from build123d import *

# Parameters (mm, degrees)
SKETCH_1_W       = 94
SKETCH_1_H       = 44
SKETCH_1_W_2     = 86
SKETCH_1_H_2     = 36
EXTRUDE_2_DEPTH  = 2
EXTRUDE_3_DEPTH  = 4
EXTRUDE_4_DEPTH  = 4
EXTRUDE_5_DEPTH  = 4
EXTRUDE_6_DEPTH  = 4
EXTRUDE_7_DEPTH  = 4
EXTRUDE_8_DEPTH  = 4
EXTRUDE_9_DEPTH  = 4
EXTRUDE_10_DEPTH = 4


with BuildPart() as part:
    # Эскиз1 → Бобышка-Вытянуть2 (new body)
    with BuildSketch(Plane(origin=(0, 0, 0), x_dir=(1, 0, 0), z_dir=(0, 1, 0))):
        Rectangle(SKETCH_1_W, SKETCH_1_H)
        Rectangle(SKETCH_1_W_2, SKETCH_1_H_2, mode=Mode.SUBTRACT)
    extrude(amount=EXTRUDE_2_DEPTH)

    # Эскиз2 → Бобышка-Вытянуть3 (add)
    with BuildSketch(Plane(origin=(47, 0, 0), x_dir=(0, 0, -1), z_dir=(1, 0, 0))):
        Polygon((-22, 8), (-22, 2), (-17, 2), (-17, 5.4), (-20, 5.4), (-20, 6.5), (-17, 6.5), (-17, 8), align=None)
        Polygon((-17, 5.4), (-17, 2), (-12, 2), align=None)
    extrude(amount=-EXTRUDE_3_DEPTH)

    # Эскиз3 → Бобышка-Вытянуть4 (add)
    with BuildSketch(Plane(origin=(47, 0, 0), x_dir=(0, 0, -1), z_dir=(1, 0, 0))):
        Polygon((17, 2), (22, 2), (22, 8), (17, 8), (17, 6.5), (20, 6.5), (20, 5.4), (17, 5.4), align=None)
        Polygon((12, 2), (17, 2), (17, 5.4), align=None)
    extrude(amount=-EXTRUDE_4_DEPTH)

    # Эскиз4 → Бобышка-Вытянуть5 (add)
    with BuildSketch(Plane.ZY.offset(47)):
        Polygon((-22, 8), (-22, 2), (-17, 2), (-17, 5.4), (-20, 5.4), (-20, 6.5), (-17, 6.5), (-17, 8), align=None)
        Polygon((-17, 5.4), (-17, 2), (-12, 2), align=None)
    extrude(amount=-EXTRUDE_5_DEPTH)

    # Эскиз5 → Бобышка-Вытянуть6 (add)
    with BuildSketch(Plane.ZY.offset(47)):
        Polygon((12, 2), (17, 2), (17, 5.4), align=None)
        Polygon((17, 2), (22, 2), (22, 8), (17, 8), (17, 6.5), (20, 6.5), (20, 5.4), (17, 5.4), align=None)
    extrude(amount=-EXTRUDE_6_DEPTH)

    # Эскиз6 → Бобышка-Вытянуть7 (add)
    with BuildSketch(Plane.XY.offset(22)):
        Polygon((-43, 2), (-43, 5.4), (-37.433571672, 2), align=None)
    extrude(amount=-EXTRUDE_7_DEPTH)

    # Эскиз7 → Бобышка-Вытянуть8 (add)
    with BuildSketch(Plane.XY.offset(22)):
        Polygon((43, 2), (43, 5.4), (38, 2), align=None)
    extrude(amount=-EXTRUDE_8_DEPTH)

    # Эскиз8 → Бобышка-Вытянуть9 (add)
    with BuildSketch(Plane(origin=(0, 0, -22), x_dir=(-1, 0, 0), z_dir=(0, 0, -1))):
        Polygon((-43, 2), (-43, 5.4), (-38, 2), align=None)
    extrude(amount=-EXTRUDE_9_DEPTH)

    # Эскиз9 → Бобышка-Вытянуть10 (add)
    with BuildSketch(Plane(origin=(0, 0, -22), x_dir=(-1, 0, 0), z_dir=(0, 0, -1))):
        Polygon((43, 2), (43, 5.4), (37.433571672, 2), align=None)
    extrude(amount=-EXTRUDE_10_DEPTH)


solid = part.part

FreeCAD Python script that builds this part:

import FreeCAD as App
import Part
import Sketcher
Q = App.Units.Quantity


def add_polygon(sketch, points):
    """Adds a closed chain of lines whose ends are joined by coincident constraints."""
    first, n = sketch.GeometryCount, len(points)
    for a, b in zip(points, points[1:] + points[:1]):
        sketch.addGeometry(Part.LineSegment(App.Vector(*a, 0), App.Vector(*b, 0)), False)
    for i in range(n):
        sketch.addConstraint(Sketcher.Constraint("Coincident", first + i, 2, first + (i + 1) % n, 1))

doc = App.newDocument("Part")
body = doc.addObject("PartDesign::Body", "Body")

# Sketch on XZ plane
sketch1 = doc.addObject("Sketcher::SketchObject", "Sketch")
body.addObject(sketch1)
sketch1.AttachmentSupport = (doc.XZ_Plane, [""])
sketch1.MapMode = "FlatFace"
add_polygon(sketch1, [(-47, -22), (-47, 22), (47, 22), (47, -22)])  # lines 0-3
add_polygon(sketch1, [(43, 18), (-43, 18), (-43, -18), (43, -18)])  # lines 4-7
sketch1.addConstraint(Sketcher.Constraint("Vertical", 0))
sketch1.addConstraint(Sketcher.Constraint("Horizontal", 1))
sketch1.addConstraint(Sketcher.Constraint("Vertical", 2))
sketch1.addConstraint(Sketcher.Constraint("Horizontal", 3))
sketch1.addConstraint(Sketcher.Constraint("Horizontal", 4))
sketch1.addConstraint(Sketcher.Constraint("Vertical", 5))
sketch1.addConstraint(Sketcher.Constraint("Horizontal", 6))
sketch1.addConstraint(Sketcher.Constraint("Vertical", 7))
sketch1.addConstraint(Sketcher.Constraint("Symmetric", 0, 2, 2, 2, -1, 1))
sketch1.addConstraint(Sketcher.Constraint("Symmetric", 4, 2, 6, 2, -1, 1))
sketch1.addConstraint(Sketcher.Constraint("DistanceX", 1, 1, 1, 2, Q("94 mm")))
sketch1.addConstraint(Sketcher.Constraint("DistanceX", 4, 2, 4, 1, Q("86 mm")))
sketch1.addConstraint(Sketcher.Constraint("DistanceY", 0, 1, 0, 2, Q("44 mm")))
sketch1.addConstraint(Sketcher.Constraint("DistanceY", 5, 2, 5, 1, Q("36 mm")))
pad1 = doc.addObject("PartDesign::Pad", "Pad")
body.addObject(pad1)
pad1.Profile = sketch1
pad1.Length = 2
pad1.Reversed = True

# Sketch on YZ plane
sketch2 = doc.addObject("Sketcher::SketchObject", "Sketch001")
body.addObject(sketch2)
sketch2.AttachmentSupport = (doc.YZ_Plane, [""])
sketch2.MapMode = "FlatFace"
sketch2.AttachmentOffset = App.Placement(App.Vector(0, 0, 47), App.Rotation())
add_polygon(sketch2, [(8, 22), (2, 22), (2, 12), (5.4, 17), (5.4, 20), (6.5, 20), (6.5, 17), (8, 17)])  # lines 0-7
sketch2.addConstraint(Sketcher.Constraint("Horizontal", 0))
sketch2.addConstraint(Sketcher.Constraint("Vertical", 1))
sketch2.addConstraint(Sketcher.Constraint("Vertical", 3))
sketch2.addConstraint(Sketcher.Constraint("Horizontal", 4))
sketch2.addConstraint(Sketcher.Constraint("Vertical", 5))
sketch2.addConstraint(Sketcher.Constraint("Horizontal", 6))
sketch2.addConstraint(Sketcher.Constraint("Vertical", 7))
sketch2.addConstraint(Sketcher.Constraint("Horizontal", 2, 2, 5, 2))
sketch2.addConstraint(Sketcher.Constraint("DistanceX", 0, 2, 0, 1, Q("6 mm")))
sketch2.addConstraint(Sketcher.Constraint("DistanceY", 1, 2, 1, 1, Q("10 mm")))
sketch2.addConstraint(Sketcher.Constraint("DistanceY", 3, 1, 3, 2, Q("3 mm")))
sketch2.addConstraint(Sketcher.Constraint("DistanceY", 7, 1, 7, 2, Q("5 mm")))
sketch2.addConstraint(Sketcher.Constraint("DistanceX", 4, 1, 4, 2, Q("1.1 mm")))
sketch2.addConstraint(Sketcher.Constraint("DistanceX", 6, 1, 6, 2, Q("1.5 mm")))
sketch2.addConstraint(Sketcher.Constraint("DistanceX", -1, 1, 0, 2, Q("2 mm")))
sketch2.addConstraint(Sketcher.Constraint("DistanceY", -1, 1, 0, 2, Q("22 mm")))
pad2 = doc.addObject("PartDesign::Pad", "Pad001")
body.addObject(pad2)
pad2.Profile = sketch2
pad2.Length = 4
pad2.Reversed = True

# Sketch on YZ plane
sketch3 = doc.addObject("Sketcher::SketchObject", "Sketch002")
body.addObject(sketch3)
sketch3.AttachmentSupport = (doc.YZ_Plane, [""])
sketch3.MapMode = "FlatFace"
sketch3.AttachmentOffset = App.Placement(App.Vector(0, 0, 47), App.Rotation())
add_polygon(sketch3, [(2, -22), (8, -22), (8, -17), (6.5, -17), (6.5, -20), (5.4, -20), (5.4, -17), (2, -12)])  # lines 0-7
sketch3.addConstraint(Sketcher.Constraint("Horizontal", 0))
sketch3.addConstraint(Sketcher.Constraint("Vertical", 1))
sketch3.addConstraint(Sketcher.Constraint("Horizontal", 2))
sketch3.addConstraint(Sketcher.Constraint("Vertical", 3))
sketch3.addConstraint(Sketcher.Constraint("Horizontal", 4))
sketch3.addConstraint(Sketcher.Constraint("Vertical", 5))
sketch3.addConstraint(Sketcher.Constraint("Vertical", 7))
sketch3.addConstraint(Sketcher.Constraint("Horizontal", 2, 2, 5, 2))
sketch3.addConstraint(Sketcher.Constraint("DistanceX", 0, 1, 0, 2, Q("6 mm")))
sketch3.addConstraint(Sketcher.Constraint("DistanceY", 1, 1, 1, 2, Q("5 mm")))
sketch3.addConstraint(Sketcher.Constraint("DistanceY", 3, 2, 3, 1, Q("3 mm")))
sketch3.addConstraint(Sketcher.Constraint("DistanceY", 7, 2, 7, 1, Q("10 mm")))
sketch3.addConstraint(Sketcher.Constraint("DistanceX", 2, 2, 2, 1, Q("1.5 mm")))
sketch3.addConstraint(Sketcher.Constraint("DistanceX", 4, 2, 4, 1, Q("1.1 mm")))
sketch3.addConstraint(Sketcher.Constraint("DistanceX", -1, 1, 0, 2, Q("8 mm")))
sketch3.addConstraint(Sketcher.Constraint("DistanceY", 0, 2, -1, 1, Q("22 mm")))
pad3 = doc.addObject("PartDesign::Pad", "Pad002")
body.addObject(pad3)
pad3.Profile = sketch3
pad3.Length = 4
pad3.Reversed = True

# Sketch on YZ plane
sketch4 = doc.addObject("Sketcher::SketchObject", "Sketch003")
body.addObject(sketch4)
sketch4.AttachmentSupport = (doc.YZ_Plane, [""])
sketch4.MapMode = "FlatFace"
sketch4.AttachmentOffset = App.Placement(App.Vector(0, 0, -47), App.Rotation())
add_polygon(sketch4, [(8, -22), (2, -22), (2, -12), (5.4, -17), (5.4, -20), (6.5, -20), (6.5, -17), (8, -17)])  # lines 0-7
sketch4.addConstraint(Sketcher.Constraint("Horizontal", 0))
sketch4.addConstraint(Sketcher.Constraint("Vertical", 1))
sketch4.addConstraint(Sketcher.Constraint("Vertical", 3))
sketch4.addConstraint(Sketcher.Constraint("Horizontal", 4))
sketch4.addConstraint(Sketcher.Constraint("Vertical", 5))
sketch4.addConstraint(Sketcher.Constraint("Horizontal", 6))
sketch4.addConstraint(Sketcher.Constraint("Vertical", 7))
sketch4.addConstraint(Sketcher.Constraint("Horizontal", 2, 2, 5, 2))
sketch4.addConstraint(Sketcher.Constraint("DistanceX", 0, 2, 0, 1, Q("6 mm")))
sketch4.addConstraint(Sketcher.Constraint("DistanceY", 1, 1, 1, 2, Q("10 mm")))
sketch4.addConstraint(Sketcher.Constraint("DistanceY", 3, 2, 3, 1, Q("3 mm")))
sketch4.addConstraint(Sketcher.Constraint("DistanceY", 7, 2, 7, 1, Q("5 mm")))
sketch4.addConstraint(Sketcher.Constraint("DistanceX", 4, 1, 4, 2, Q("1.1 mm")))
sketch4.addConstraint(Sketcher.Constraint("DistanceX", 6, 1, 6, 2, Q("1.5 mm")))
sketch4.addConstraint(Sketcher.Constraint("DistanceX", -1, 1, 0, 2, Q("2 mm")))
sketch4.addConstraint(Sketcher.Constraint("DistanceY", 0, 2, -1, 1, Q("22 mm")))
pad4 = doc.addObject("PartDesign::Pad", "Pad003")
body.addObject(pad4)
pad4.Profile = sketch4
pad4.Length = 4

# Sketch on YZ plane
sketch5 = doc.addObject("Sketcher::SketchObject", "Sketch004")
body.addObject(sketch5)
sketch5.AttachmentSupport = (doc.YZ_Plane, [""])
sketch5.MapMode = "FlatFace"
sketch5.AttachmentOffset = App.Placement(App.Vector(0, 0, -47), App.Rotation())
add_polygon(sketch5, [(2, 12), (2, 22), (8, 22), (8, 17), (6.5, 17), (6.5, 20), (5.4, 20), (5.4, 17)])  # lines 0-7
sketch5.addConstraint(Sketcher.Constraint("Vertical", 0))
sketch5.addConstraint(Sketcher.Constraint("Horizontal", 1))
sketch5.addConstraint(Sketcher.Constraint("Vertical", 2))
sketch5.addConstraint(Sketcher.Constraint("Horizontal", 3))
sketch5.addConstraint(Sketcher.Constraint("Vertical", 4))
sketch5.addConstraint(Sketcher.Constraint("Horizontal", 5))
sketch5.addConstraint(Sketcher.Constraint("Vertical", 6))
sketch5.addConstraint(Sketcher.Constraint("Horizontal", 3, 2, 6, 2))
sketch5.addConstraint(Sketcher.Constraint("DistanceX", 1, 1, 1, 2, Q("6 mm")))
sketch5.addConstraint(Sketcher.Constraint("DistanceY", 0, 1, 0, 2, Q("10 mm")))
sketch5.addConstraint(Sketcher.Constraint("DistanceY", 2, 2, 2, 1, Q("5 mm")))
sketch5.addConstraint(Sketcher.Constraint("DistanceY", 4, 1, 4, 2, Q("3 mm")))
sketch5.addConstraint(Sketcher.Constraint("DistanceX", 3, 2, 3, 1, Q("1.5 mm")))
sketch5.addConstraint(Sketcher.Constraint("DistanceX", 5, 2, 5, 1, Q("1.1 mm")))
sketch5.addConstraint(Sketcher.Constraint("DistanceX", -1, 1, 0, 2, Q("2 mm")))
sketch5.addConstraint(Sketcher.Constraint("DistanceY", -1, 1, 0, 2, Q("22 mm")))
pad5 = doc.addObject("PartDesign::Pad", "Pad004")
body.addObject(pad5)
pad5.Profile = sketch5
pad5.Length = 4

# Sketch on XY plane
sketch6 = doc.addObject("Sketcher::SketchObject", "Sketch005")
body.addObject(sketch6)
sketch6.AttachmentSupport = (doc.XY_Plane, [""])
sketch6.MapMode = "FlatFace"
sketch6.AttachmentOffset = App.Placement(App.Vector(0, 0, 22), App.Rotation())
add_polygon(sketch6, [(-43, 5.4), (-43, 2), (-37.4, 2)])  # lines 0-2
sketch6.addConstraint(Sketcher.Constraint("Vertical", 0))
sketch6.addConstraint(Sketcher.Constraint("Horizontal", 1))
sketch6.addConstraint(Sketcher.Constraint("DistanceY", 0, 2, 0, 1, Q("3.4 mm")))
sketch6.addConstraint(Sketcher.Constraint("DistanceX", 0, 2, -1, 1, Q("43 mm")))
sketch6.addConstraint(Sketcher.Constraint("DistanceY", -1, 1, 0, 2, Q("2 mm")))
sketch6.addConstraint(Sketcher.Constraint("DistanceX", 1, 1, 1, 2, Q("5.566428 mm")))
pad6 = doc.addObject("PartDesign::Pad", "Pad005")
body.addObject(pad6)
pad6.Profile = sketch6
pad6.Length = 4
pad6.Reversed = True

# Sketch on XY plane
sketch7 = doc.addObject("Sketcher::SketchObject", "Sketch006")
body.addObject(sketch7)
sketch7.AttachmentSupport = (doc.XY_Plane, [""])
sketch7.MapMode = "FlatFace"
sketch7.AttachmentOffset = App.Placement(App.Vector(0, 0, 22), App.Rotation())
add_polygon(sketch7, [(43, 2), (43, 5.4), (38, 2)])  # lines 0-2
sketch7.addConstraint(Sketcher.Constraint("Vertical", 0))
sketch7.addConstraint(Sketcher.Constraint("Horizontal", 2))
sketch7.addConstraint(Sketcher.Constraint("DistanceX", 2, 1, 2, 2, Q("5 mm")))
sketch7.addConstraint(Sketcher.Constraint("DistanceY", 0, 1, 0, 2, Q("3.4 mm")))
sketch7.addConstraint(Sketcher.Constraint("DistanceX", -1, 1, 0, 2, Q("43 mm")))
sketch7.addConstraint(Sketcher.Constraint("DistanceY", -1, 1, 1, 2, Q("2 mm")))
pad7 = doc.addObject("PartDesign::Pad", "Pad006")
body.addObject(pad7)
pad7.Profile = sketch7
pad7.Length = 4
pad7.Reversed = True

# Sketch on XY plane
sketch8 = doc.addObject("Sketcher::SketchObject", "Sketch007")
body.addObject(sketch8)
sketch8.AttachmentSupport = (doc.XY_Plane, [""])
sketch8.MapMode = "FlatFace"
sketch8.AttachmentOffset = App.Placement(App.Vector(0, 0, -22), App.Rotation())
add_polygon(sketch8, [(43, 5.4), (43, 2), (38, 2)])  # lines 0-2
sketch8.addConstraint(Sketcher.Constraint("Vertical", 0))
sketch8.addConstraint(Sketcher.Constraint("Horizontal", 1))
sketch8.addConstraint(Sketcher.Constraint("DistanceX", 1, 2, 1, 1, Q("5 mm")))
sketch8.addConstraint(Sketcher.Constraint("DistanceY", 0, 2, 0, 1, Q("3.4 mm")))
sketch8.addConstraint(Sketcher.Constraint("DistanceX", -1, 1, 0, 2, Q("43 mm")))
sketch8.addConstraint(Sketcher.Constraint("DistanceY", -1, 1, 0, 2, Q("2 mm")))
pad8 = doc.addObject("PartDesign::Pad", "Pad007")
body.addObject(pad8)
pad8.Profile = sketch8
pad8.Length = 4

# Sketch on XY plane
sketch9 = doc.addObject("Sketcher::SketchObject", "Sketch008")
body.addObject(sketch9)
sketch9.AttachmentSupport = (doc.XY_Plane, [""])
sketch9.MapMode = "FlatFace"
sketch9.AttachmentOffset = App.Placement(App.Vector(0, 0, -22), App.Rotation())
add_polygon(sketch9, [(-43, 2), (-43, 5.4), (-37.4, 2)])  # lines 0-2
sketch9.addConstraint(Sketcher.Constraint("Vertical", 0))
sketch9.addConstraint(Sketcher.Constraint("Horizontal", 2))
sketch9.addConstraint(Sketcher.Constraint("DistanceY", 0, 1, 0, 2, Q("3.4 mm")))
sketch9.addConstraint(Sketcher.Constraint("DistanceX", 0, 2, -1, 1, Q("43 mm")))
sketch9.addConstraint(Sketcher.Constraint("DistanceY", -1, 1, 1, 2, Q("2 mm")))
sketch9.addConstraint(Sketcher.Constraint("DistanceX", 2, 2, 2, 1, Q("5.566428 mm")))
pad9 = doc.addObject("PartDesign::Pad", "Pad008")
body.addObject(pad9)
pad9.Profile = sketch9
pad9.Length = 4

doc.recompute()
